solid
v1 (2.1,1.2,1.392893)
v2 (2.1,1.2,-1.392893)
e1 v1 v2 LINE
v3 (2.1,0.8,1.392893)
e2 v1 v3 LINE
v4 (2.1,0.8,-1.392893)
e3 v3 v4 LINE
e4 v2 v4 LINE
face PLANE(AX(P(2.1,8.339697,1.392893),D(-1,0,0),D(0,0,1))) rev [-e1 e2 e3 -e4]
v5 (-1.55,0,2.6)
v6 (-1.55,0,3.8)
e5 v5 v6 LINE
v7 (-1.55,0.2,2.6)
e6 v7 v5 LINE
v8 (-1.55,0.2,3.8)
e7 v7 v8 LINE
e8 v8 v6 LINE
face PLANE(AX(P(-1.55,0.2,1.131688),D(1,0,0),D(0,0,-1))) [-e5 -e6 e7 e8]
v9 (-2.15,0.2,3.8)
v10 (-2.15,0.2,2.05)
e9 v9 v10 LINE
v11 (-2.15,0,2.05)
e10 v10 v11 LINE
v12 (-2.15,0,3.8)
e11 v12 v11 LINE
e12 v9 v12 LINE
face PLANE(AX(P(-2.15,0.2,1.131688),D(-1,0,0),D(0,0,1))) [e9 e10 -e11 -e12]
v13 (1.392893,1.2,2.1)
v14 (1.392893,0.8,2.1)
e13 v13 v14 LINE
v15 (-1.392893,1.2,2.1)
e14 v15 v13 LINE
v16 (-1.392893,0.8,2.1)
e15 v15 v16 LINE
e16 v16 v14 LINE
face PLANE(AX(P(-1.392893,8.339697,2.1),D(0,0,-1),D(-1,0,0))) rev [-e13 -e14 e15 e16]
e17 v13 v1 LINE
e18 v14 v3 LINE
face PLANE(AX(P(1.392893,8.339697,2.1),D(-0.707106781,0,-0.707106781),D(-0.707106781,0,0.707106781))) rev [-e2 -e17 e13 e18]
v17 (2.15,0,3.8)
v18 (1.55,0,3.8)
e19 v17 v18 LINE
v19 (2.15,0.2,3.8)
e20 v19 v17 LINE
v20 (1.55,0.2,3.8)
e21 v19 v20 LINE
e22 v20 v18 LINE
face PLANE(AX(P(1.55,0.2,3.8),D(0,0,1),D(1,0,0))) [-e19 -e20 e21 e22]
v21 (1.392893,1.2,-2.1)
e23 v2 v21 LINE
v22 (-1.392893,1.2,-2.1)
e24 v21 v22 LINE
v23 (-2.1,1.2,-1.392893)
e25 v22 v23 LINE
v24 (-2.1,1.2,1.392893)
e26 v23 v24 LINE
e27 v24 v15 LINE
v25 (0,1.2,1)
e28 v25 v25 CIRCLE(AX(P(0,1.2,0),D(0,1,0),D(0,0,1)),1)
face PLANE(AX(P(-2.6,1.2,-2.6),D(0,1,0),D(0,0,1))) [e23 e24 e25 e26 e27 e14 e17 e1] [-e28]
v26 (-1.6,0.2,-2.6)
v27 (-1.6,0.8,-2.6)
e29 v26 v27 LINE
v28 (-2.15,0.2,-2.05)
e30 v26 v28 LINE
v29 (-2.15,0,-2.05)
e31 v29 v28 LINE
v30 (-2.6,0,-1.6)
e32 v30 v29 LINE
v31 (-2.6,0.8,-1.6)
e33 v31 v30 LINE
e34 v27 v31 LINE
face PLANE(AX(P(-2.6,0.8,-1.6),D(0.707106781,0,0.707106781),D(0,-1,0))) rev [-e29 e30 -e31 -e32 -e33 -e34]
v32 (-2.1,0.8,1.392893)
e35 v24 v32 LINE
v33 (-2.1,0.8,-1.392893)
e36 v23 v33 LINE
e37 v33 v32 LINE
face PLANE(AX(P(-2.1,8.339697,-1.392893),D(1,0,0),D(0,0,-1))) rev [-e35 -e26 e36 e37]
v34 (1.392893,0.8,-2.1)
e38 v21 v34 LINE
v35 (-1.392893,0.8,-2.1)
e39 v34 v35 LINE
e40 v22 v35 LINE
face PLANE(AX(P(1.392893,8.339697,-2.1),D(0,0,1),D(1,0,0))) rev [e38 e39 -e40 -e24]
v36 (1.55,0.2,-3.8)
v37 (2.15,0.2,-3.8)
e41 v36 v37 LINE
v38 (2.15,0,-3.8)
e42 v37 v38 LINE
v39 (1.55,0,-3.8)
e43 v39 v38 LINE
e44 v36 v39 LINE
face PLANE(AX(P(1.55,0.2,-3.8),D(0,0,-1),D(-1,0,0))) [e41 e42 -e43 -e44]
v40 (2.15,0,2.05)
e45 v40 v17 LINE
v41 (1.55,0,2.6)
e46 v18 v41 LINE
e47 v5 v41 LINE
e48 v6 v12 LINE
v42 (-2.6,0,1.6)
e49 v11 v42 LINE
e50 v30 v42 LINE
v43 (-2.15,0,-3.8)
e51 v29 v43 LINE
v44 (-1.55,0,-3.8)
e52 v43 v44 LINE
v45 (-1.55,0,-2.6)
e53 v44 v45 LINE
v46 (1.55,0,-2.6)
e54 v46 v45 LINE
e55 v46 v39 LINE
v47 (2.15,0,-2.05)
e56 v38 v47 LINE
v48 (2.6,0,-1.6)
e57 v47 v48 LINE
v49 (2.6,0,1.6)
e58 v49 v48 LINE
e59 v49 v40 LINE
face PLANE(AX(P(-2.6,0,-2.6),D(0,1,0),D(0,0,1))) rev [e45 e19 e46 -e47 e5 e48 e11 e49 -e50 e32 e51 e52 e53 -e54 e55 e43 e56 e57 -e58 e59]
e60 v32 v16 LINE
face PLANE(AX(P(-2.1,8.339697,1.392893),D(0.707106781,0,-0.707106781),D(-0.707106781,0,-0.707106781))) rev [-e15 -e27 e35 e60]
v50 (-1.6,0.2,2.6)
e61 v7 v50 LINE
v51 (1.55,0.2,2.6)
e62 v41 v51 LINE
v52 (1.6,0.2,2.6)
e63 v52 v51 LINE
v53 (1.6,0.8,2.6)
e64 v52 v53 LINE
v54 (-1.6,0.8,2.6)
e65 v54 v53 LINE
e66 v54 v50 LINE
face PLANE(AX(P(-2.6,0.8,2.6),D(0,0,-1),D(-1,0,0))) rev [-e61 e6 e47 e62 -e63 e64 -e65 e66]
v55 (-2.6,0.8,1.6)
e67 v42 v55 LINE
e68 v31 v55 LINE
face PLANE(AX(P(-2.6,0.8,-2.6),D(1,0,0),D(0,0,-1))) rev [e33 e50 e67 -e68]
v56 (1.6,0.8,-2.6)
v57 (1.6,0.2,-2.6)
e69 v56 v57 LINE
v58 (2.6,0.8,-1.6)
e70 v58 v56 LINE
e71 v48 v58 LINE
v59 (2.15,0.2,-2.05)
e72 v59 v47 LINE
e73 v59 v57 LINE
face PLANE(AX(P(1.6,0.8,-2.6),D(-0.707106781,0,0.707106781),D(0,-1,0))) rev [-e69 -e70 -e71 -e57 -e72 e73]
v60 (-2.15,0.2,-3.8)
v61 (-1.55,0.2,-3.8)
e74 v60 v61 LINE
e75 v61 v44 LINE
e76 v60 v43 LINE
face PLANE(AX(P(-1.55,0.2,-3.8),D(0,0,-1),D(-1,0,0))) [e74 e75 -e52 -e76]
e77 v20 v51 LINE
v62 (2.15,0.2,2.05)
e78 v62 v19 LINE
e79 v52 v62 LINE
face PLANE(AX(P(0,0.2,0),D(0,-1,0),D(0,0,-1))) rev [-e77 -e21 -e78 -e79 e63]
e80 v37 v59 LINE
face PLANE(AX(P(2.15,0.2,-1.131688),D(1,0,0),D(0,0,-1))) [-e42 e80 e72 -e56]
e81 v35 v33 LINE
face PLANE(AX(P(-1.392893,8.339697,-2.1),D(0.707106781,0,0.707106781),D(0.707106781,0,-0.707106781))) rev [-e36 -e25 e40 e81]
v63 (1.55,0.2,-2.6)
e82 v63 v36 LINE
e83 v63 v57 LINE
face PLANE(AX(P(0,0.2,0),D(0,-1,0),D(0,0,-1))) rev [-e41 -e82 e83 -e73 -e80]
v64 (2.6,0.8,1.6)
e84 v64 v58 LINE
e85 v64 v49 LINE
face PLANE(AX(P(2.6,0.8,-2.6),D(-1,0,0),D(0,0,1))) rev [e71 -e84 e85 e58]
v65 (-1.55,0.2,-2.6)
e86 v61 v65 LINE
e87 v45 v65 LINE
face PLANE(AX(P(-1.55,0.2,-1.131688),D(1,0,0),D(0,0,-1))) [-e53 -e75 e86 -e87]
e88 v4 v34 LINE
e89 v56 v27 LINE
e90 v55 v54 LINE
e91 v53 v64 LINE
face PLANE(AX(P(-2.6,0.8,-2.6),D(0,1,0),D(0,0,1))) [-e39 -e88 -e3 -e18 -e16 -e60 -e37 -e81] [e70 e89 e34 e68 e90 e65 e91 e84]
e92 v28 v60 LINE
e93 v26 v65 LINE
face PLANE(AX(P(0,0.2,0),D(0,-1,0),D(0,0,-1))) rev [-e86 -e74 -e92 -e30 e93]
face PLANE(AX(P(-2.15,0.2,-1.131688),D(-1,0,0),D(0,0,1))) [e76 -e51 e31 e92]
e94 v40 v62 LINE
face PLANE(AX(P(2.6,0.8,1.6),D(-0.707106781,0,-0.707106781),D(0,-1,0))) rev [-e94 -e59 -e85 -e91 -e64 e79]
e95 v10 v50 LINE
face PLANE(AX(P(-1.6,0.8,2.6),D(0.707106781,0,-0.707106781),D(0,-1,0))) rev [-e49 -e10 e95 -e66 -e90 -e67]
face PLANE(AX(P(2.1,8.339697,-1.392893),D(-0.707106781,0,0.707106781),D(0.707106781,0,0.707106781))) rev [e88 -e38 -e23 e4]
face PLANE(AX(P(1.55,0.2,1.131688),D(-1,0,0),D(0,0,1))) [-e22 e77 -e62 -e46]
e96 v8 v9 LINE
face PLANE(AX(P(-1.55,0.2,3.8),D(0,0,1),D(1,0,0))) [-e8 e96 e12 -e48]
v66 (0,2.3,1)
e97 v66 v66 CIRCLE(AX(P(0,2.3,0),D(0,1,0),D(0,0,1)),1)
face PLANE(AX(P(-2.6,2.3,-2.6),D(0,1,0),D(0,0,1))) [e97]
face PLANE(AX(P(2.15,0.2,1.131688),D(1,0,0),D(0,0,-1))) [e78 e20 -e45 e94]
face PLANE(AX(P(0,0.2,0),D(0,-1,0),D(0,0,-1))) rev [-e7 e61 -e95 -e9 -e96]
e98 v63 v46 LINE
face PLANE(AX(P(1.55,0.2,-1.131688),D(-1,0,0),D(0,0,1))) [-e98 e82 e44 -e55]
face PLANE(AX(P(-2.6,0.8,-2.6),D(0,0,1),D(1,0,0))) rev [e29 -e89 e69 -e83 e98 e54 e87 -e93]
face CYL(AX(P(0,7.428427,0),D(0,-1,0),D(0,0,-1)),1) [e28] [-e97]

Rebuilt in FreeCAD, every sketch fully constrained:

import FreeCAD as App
import Part
import Sketcher


def edges_at(feature, points):
    """Names of the edges that pass closest to the given points."""
    edges = feature.Shape.Edges
    near = lambda p: min(range(len(edges)), key=lambda i: edges[i].distToShape(Part.Vertex(*p))[0])
    return sorted({f"Edge{near(p) + 1}" for p in points})

doc = App.newDocument("Part")
body = doc.addObject("PartDesign::Body", "Body")

# Sketch on XZ plane
sketch1 = doc.addObject("Sketcher::SketchObject", "Sketch")
body.addObject(sketch1)
sketch1.AttachmentSupport = (doc.XZ_Plane, [""])
sketch1.MapMode = "FlatFace"
sketch1.addGeometry(Part.LineSegment(App.Vector(-3, -3, 0), App.Vector(-3, 3, 0)), False)
sketch1.addGeometry(Part.LineSegment(App.Vector(-3, 3, 0), App.Vector(3, 3, 0)), False)
sketch1.addGeometry(Part.LineSegment(App.Vector(3, 3, 0), App.Vector(3, -3, 0)), False)
sketch1.addGeometry(Part.LineSegment(App.Vector(3, -3, 0), App.Vector(-3, -3, 0)), False)
sketch1.addConstraint(Sketcher.Constraint("Coincident", 0, 2, 1, 1))
sketch1.addConstraint(Sketcher.Constraint("Coincident", 1, 2, 2, 1))
sketch1.addConstraint(Sketcher.Constraint("Coincident", 2, 2, 3, 1))
sketch1.addConstraint(Sketcher.Constraint("Coincident", 3, 2, 0, 1))
sketch1.addConstraint(Sketcher.Constraint("Vertical", 0))
sketch1.addConstraint(Sketcher.Constraint("Horizontal", 1))
sketch1.addConstraint(Sketcher.Constraint("Vertical", 2))
sketch1.addConstraint(Sketcher.Constraint("Horizontal", 3))
sketch1.addConstraint(Sketcher.Constraint("Symmetric", 0, 2, 2, 2, -1, 1))
sketch1.addConstraint(Sketcher.Constraint("Equal", 3, 0))
sketch1.addConstraint(Sketcher.Constraint("DistanceX", 1, 1, 1, 2, 5.2))
pad1 = doc.addObject("PartDesign::Pad", "Pad")
body.addObject(pad1)
pad1.Profile = sketch1
pad1.Length = 0.8
pad1.Reversed = True
doc.recompute()

chamfer = doc.addObject("PartDesign::Chamfer", "Chamfer")
body.addObject(chamfer)
chamfer.Base = (pad1, edges_at(pad1, [
    (-2.6, 0.4, -2.6),
    (2.6, 0.4, -2.6),
    (2.6, 0.4, 2.6),
    (-2.6, 0.4, 2.6),
]))
chamfer.Size = 1

# Sketch on XZ plane
sketch2 = doc.addObject("Sketcher::SketchObject", "Sketch001")
body.addObject(sketch2)
sketch2.AttachmentSupport = (doc.XZ_Plane, [""])
sketch2.MapMode = "FlatFace"
sketch2.AttachmentOffset = App.Placement(App.Vector(0, 0, -0.8), App.Rotation())
sketch2.addGeometry(Part.LineSegment(App.Vector(-2.1, -1.4, 0), App.Vector(-2.1, 1.4, 0)), False)
sketch2.addGeometry(Part.LineSegment(App.Vector(-2.1, 1.4, 0), App.Vector(-1.4, 2.1, 0)), False)
sketch2.addGeometry(Part.LineSegment(App.Vector(-1.4, 2.1, 0), App.Vector(1.4, 2.1, 0)), False)
sketch2.addGeometry(Part.LineSegment(App.Vector(1.4, 2.1, 0), App.Vector(2.1, 1.4, 0)), False)
sketch2.addGeometry(Part.LineSegment(App.Vector(2.1, 1.4, 0), App.Vector(2.1, -1.4, 0)), False)
sketch2.addGeometry(Part.LineSegment(App.Vector(2.1, -1.4, 0), App.Vector(1.4, -2.1, 0)), False)
sketch2.addGeometry(Part.LineSegment(App.Vector(1.4, -2.1, 0), App.Vector(-1.4, -2.1, 0)), False)
sketch2.addGeometry(Part.LineSegment(App.Vector(-1.4, -2.1, 0), App.Vector(-2.1, -1.4, 0)), False)
sketch2.addConstraint(Sketcher.Constraint("Coincident", 0, 2, 1, 1))
sketch2.addConstraint(Sketcher.Constraint("Coincident", 1, 2, 2, 1))
sketch2.addConstraint(Sketcher.Constraint("Coincident", 2, 2, 3, 1))
sketch2.addConstraint(Sketcher.Constraint("Coincident", 3, 2, 4, 1))
sketch2.addConstraint(Sketcher.Constraint("Coincident", 4, 2, 5, 1))
sketch2.addConstraint(Sketcher.Constraint("Coincident", 5, 2, 6, 1))
sketch2.addConstraint(Sketcher.Constraint("Coincident", 6, 2, 7, 1))
sketch2.addConstraint(Sketcher.Constraint("Coincident", 7, 2, 0, 1))
sketch2.addConstraint(Sketcher.Constraint("Vertical", 0))
sketch2.addConstraint(Sketcher.Constraint("Horizontal", 2))
sketch2.addConstraint(Sketcher.Constraint("Vertical", 4))
sketch2.addConstraint(Sketcher.Constraint("Horizontal", 6))
sketch2.addConstraint(Sketcher.Constraint("Symmetric", 0, 2, 4, 2, -1, 1))
sketch2.addConstraint(Sketcher.Constraint("Symmetric", 1, 2, 5, 2, -1, 1))
sketch2.addConstraint(Sketcher.Constraint("Perpendicular", 1, 3))
sketch2.addConstraint(Sketcher.Constraint("Perpendicular", 5, 7))
sketch2.addConstraint(Sketcher.Constraint("Horizontal", 0, 2, 3, 2))
sketch2.addConstraint(Sketcher.Constraint("Horizontal", 4, 2, 7, 2))
sketch2.addConstraint(Sketcher.Constraint("Vertical", 2, 2, 5, 2))
sketch2.addConstraint(Sketcher.Constraint("Equal", 6, 0))
sketch2.addConstraint(Sketcher.Constraint("Distance", 1, 1.0))
sketch2.addConstraint(Sketcher.Constraint("DistanceX", 0, 2, -1, 1, 2.1))
pad2 = doc.addObject("PartDesign::Pad", "Pad001")
body.addObject(pad2)
pad2.Profile = sketch2
pad2.Length = 0.4
pad2.Reversed = True

# Sketch on XZ plane
sketch3 = doc.addObject("Sketcher::SketchObject", "Sketch002")
body.addObject(sketch3)
sketch3.AttachmentSupport = (doc.XZ_Plane, [""])
sketch3.MapMode = "FlatFace"
sketch3.AttachmentOffset = App.Placement(App.Vector(0, 0, -1.2), App.Rotation())
sketch3.addGeometry(Part.Circle(App.Vector(0, 0, 0), App.Vector(0, 0, 1), 1), False)
sketch3.addConstraint(Sketcher.Constraint("Coincident", 0, 3, -1, 1))
sketch3.addConstraint(Sketcher.Constraint("Diameter", 0, 2.0))
pad3 = doc.addObject("PartDesign::Pad", "Pad002")
body.addObject(pad3)
pad3.Profile = sketch3
pad3.Length = 1.1
pad3.Reversed = True

# Sketch on XZ plane
sketch4 = doc.addObject("Sketcher::SketchObject", "Sketch003")
body.addObject(sketch4)
sketch4.AttachmentSupport = (doc.XZ_Plane, [""])
sketch4.MapMode = "FlatFace"
sketch4.addGeometry(Part.LineSegment(App.Vector(-2.1, 3.8, 0), App.Vector(-2.1, 1.1, 0)), False)
sketch4.addGeometry(Part.LineSegment(App.Vector(-2.1, 1.1, 0), App.Vector(-1.6, 1.1, 0)), False)
sketch4.addGeometry(Part.LineSegment(App.Vector(-1.6, 1.1, 0), App.Vector(-1.6, 3.8, 0)), False)
sketch4.addGeometry(Part.LineSegment(App.Vector(-1.6, 3.8, 0), App.Vector(-2.1, 3.8, 0)), False)
sketch4.addGeometry(Part.LineSegment(App.Vector(1.6, 3.8, 0), App.Vector(1.6, 1.1, 0)), False)
sketch4.addGeometry(Part.LineSegment(App.Vector(1.6, 1.1, 0), App.Vector(2.1, 1.1, 0)), False)
sketch4.addGeometry(Part.LineSegment(App.Vector(2.1, 1.1, 0), App.Vector(2.1, 3.8, 0)), False)
sketch4.addGeometry(Part.LineSegment(App.Vector(2.1, 3.8, 0), App.Vector(1.6, 3.8, 0)), False)
sketch4.addGeometry(Part.LineSegment(App.Vector(1.6, -1.1, 0), App.Vector(1.6, -3.8, 0)), False)
sketch4.addGeometry(Part.LineSegment(App.Vector(1.6, -3.8, 0), App.Vector(2.1, -3.8, 0)), False)
sketch4.addGeometry(Part.LineSegment(App.Vector(2.1, -3.8, 0), App.Vector(2.1, -1.1, 0)), False)
sketch4.addGeometry(Part.LineSegment(App.Vector(2.1, -1.1, 0), App.Vector(1.6, -1.1, 0)), False)
sketch4.addGeometry(Part.LineSegment(App.Vector(-2.1, -1.1, 0), App.Vector(-2.1, -3.8, 0)), False)
sketch4.addGeometry(Part.LineSegment(App.Vector(-2.1, -3.8, 0), App.Vector(-1.6, -3.8, 0)), False)
sketch4.addGeometry(Part.LineSegment(App.Vector(-1.6, -3.8, 0), App.Vector(-1.6, -1.1, 0)), False)
sketch4.addGeometry(Part.LineSegment(App.Vector(-1.6, -1.1, 0), App.Vector(-2.1, -1.1, 0)), False)
sketch4.addConstraint(Sketcher.Constraint("Coincident", 0, 2, 1, 1))
sketch4.addConstraint(Sketcher.Constraint("Coincident", 1, 2, 2, 1))
sketch4.addConstraint(Sketcher.Constraint("Coincident", 2, 2, 3, 1))
sketch4.addConstraint(Sketcher.Constraint("Coincident", 3, 2, 0, 1))
sketch4.addConstraint(Sketcher.Constraint("Coincident", 4, 2, 5, 1))
sketch4.addConstraint(Sketcher.Constraint("Coincident", 5, 2, 6, 1))
sketch4.addConstraint(Sketcher.Constraint("Coincident", 6, 2, 7, 1))
sketch4.addConstraint(Sketcher.Constraint("Coincident", 7, 2, 4, 1))
sketch4.addConstraint(Sketcher.Constraint("Coincident", 8, 2, 9, 1))
sketch4.addConstraint(Sketcher.Constraint("Coincident", 9, 2, 10, 1))
sketch4.addConstraint(Sketcher.Constraint("Coincident", 10, 2, 11, 1))
sketch4.addConstraint(Sketcher.Constraint("Coincident", 11, 2, 8, 1))
sketch4.addConstraint(Sketcher.Constraint("Coincident", 12, 2, 13, 1))
sketch4.addConstraint(Sketcher.Constraint("Coincident", 13, 2, 14, 1))
sketch4.addConstraint(Sketcher.Constraint("Coincident", 14, 2, 15, 1))
sketch4.addConstraint(Sketcher.Constraint("Coincident", 15, 2, 12, 1))
sketch4.addConstraint(Sketcher.Constraint("Vertical", 0))
sketch4.addConstraint(Sketcher.Constraint("Horizontal", 1))
sketch4.addConstraint(Sketcher.Constraint("Vertical", 2))
sketch4.addConstraint(Sketcher.Constraint("Horizontal", 3))
sketch4.addConstraint(Sketcher.Constraint("Vertical", 4))
sketch4.addConstraint(Sketcher.Constraint("Horizontal", 5))
sketch4.addConstraint(Sketcher.Constraint("Vertical", 6))
sketch4.addConstraint(Sketcher.Constraint("Horizontal", 7))
sketch4.addConstraint(Sketcher.Constraint("Vertical", 8))
sketch4.addConstraint(Sketcher.Constraint("Horizontal", 9))
sketch4.addConstraint(Sketcher.Constraint("Vertical", 10))
sketch4.addConstraint(Sketcher.Constraint("Horizontal", 11))
sketch4.addConstraint(Sketcher.Constraint("Vertical", 12))
sketch4.addConstraint(Sketcher.Constraint("Horizontal", 13))
sketch4.addConstraint(Sketcher.Constraint("Vertical", 14))
sketch4.addConstraint(Sketcher.Constraint("Horizontal", 15))
sketch4.addConstraint(Sketcher.Constraint("Symmetric", 2, 2, 8, 2, -1, 1))
sketch4.addConstraint(Sketcher.Constraint("Symmetric", 0, 2, 10, 2, -1, 1))
sketch4.addConstraint(Sketcher.Constraint("Symmetric", 6, 2, 12, 2, -1, 1))
sketch4.addConstraint(Sketcher.Constraint("Symmetric", 4, 2, 14, 2, -1, 1))
sketch4.addConstraint(Sketcher.Constraint("Symmetric", 1, 2, 4, 2, -2))
sketch4.addConstraint(Sketcher.Constraint("Symmetric", 3, 2, 6, 2, -2))
sketch4.addConstraint(Sketcher.Constraint("DistanceX", 1, 1, 1, 2, 0.6))
sketch4.addConstraint(Sketcher.Constraint("DistanceY", -1, 1, 2, 2, 3.8))
sketch4.addConstraint(Sketcher.Constraint("DistanceX", 1, 2, 4, 2, 3.1))
sketch4.addConstraint(Sketcher.Constraint("DistanceY", 0, 2, 0, 1, 2.668312))
pad4 = doc.addObject("PartDesign::Pad", "Pad003")
body.addObject(pad4)
pad4.Profile = sketch4
pad4.Length = 0.2
pad4.Reversed = True

doc.recompute()
